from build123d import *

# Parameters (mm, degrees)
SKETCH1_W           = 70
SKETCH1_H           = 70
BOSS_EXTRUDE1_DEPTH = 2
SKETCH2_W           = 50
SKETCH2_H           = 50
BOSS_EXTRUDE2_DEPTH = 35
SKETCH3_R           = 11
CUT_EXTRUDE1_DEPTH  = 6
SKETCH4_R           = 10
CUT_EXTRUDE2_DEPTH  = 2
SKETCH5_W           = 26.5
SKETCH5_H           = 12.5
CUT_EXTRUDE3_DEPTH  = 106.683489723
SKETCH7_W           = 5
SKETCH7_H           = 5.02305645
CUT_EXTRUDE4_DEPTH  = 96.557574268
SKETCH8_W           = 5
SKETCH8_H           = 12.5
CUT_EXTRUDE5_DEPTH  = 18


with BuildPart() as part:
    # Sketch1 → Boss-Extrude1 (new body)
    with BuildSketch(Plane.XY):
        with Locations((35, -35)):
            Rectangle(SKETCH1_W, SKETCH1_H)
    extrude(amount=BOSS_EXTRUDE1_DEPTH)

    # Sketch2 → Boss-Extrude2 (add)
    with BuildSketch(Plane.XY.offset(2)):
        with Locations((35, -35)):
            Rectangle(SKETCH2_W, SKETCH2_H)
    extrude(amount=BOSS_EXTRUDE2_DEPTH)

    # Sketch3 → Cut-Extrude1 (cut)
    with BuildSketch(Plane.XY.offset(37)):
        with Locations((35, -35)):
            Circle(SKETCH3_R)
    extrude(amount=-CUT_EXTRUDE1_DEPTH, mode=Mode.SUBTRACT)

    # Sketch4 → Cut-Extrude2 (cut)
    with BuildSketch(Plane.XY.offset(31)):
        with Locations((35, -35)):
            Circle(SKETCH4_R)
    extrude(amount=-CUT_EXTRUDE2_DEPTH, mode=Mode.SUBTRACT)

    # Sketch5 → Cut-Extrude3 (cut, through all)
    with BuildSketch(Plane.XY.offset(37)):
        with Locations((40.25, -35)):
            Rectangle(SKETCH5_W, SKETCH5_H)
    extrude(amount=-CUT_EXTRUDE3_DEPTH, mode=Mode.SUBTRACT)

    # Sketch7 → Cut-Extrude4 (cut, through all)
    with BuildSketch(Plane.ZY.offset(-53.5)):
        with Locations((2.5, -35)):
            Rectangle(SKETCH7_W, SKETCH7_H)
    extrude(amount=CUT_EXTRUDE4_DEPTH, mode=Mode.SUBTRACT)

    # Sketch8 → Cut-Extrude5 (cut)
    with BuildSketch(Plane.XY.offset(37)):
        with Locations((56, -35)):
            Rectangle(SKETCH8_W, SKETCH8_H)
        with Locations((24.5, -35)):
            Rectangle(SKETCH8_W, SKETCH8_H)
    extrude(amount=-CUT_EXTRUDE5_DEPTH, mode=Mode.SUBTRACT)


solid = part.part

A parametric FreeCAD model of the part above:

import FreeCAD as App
import Part
import Sketcher
Q = App.Units.Quantity


def add_polygon(sketch, points):
    """Adds a closed chain of lines whose ends are joined by coincident constraints."""
    first, n = sketch.GeometryCount, len(points)
    for a, b in zip(points, points[1:] + points[:1]):
        sketch.addGeometry(Part.LineSegment(App.Vector(*a, 0), App.Vector(*b, 0)), False)
    for i in range(n):
        sketch.addConstraint(Sketcher.Constraint("Coincident", first + i, 2, first + (i + 1) % n, 1))

doc = App.newDocument("Part")
body = doc.addObject("PartDesign::Body", "Body")

# Sketch on XY plane
sketch1 = body.newObject("Sketcher::SketchObject", "Sketch")
sketch1.AttachmentSupport = (doc.getObject("XY_Plane"), [""])
sketch1.MapMode = "FlatFace"
add_polygon(sketch1, [(0, 0), (0, -70), (70, -70), (70, 0)])  # lines 0-3
sketch1.addConstraint(Sketcher.Constraint("Vertical", 0))
sketch1.addConstraint(Sketcher.Constraint("Horizontal", 1))
sketch1.addConstraint(Sketcher.Constraint("Vertical", 2))
sketch1.addConstraint(Sketcher.Constraint("Horizontal", 3))
sketch1.addConstraint(Sketcher.Constraint("Coincident", 3, 2, -1, 1))
sketch1.addConstraint(Sketcher.Constraint("Equal", 3, 0))
sketch1.addConstraint(Sketcher.Constraint("DistanceX", 1, 1, 1, 2, Q("70 mm")))
pad1 = body.newObject("PartDesign::Pad", "Pad")
pad1.Profile = sketch1
pad1.Length = 2

# Sketch on XY plane
sketch2 = body.newObject("Sketcher::SketchObject", "Sketch001")
sketch2.AttachmentSupport = (doc.getObject("XY_Plane"), [""])
sketch2.MapMode = "FlatFace"
sketch2.AttachmentOffset = App.Placement(App.Vector(0, 0, 2), App.Rotation())
add_polygon(sketch2, [(10, -10), (10, -60), (60, -60), (60, -10)])  # lines 0-3
sketch2.addConstraint(Sketcher.Constraint("Vertical", 0))
sketch2.addConstraint(Sketcher.Constraint("Horizontal", 1))
sketch2.addConstraint(Sketcher.Constraint("Vertical", 2))
sketch2.addConstraint(Sketcher.Constraint("Horizontal", 3))
sketch2.addConstraint(Sketcher.Constraint("Equal", 3, 0))
sketch2.addConstraint(Sketcher.Constraint("DistanceX", 1, 1, 1, 2, Q("50 mm")))
sketch2.addConstraint(Sketcher.Constraint("DistanceX", -1, 1, 0, 2, Q("10 mm")))
sketch2.addConstraint(Sketcher.Constraint("DistanceY", 0, 2, -1, 1, Q("60 mm")))
pad2 = body.newObject("PartDesign::Pad", "Pad001")
pad2.Profile = sketch2
pad2.Length = 35

# Sketch on XY plane
sketch3 = body.newObject("Sketcher::SketchObject", "Sketch002")
sketch3.AttachmentSupport = (doc.getObject("XY_Plane"), [""])
sketch3.MapMode = "FlatFace"
sketch3.AttachmentOffset = App.Placement(App.Vector(0, 0, 37), App.Rotation())
sketch3.addGeometry(Part.Circle(App.Vector(35, -35, 0), App.Vector(0, 0, 1), 11), False)
sketch3.addConstraint(Sketcher.Constraint("Diameter", 0, Q("22 mm")))
sketch3.addConstraint(Sketcher.Constraint("DistanceX", -1, 1, 0, 3, Q("35 mm")))
sketch3.addConstraint(Sketcher.Constraint("DistanceY", 0, 3, -1, 1, Q("35 mm")))
pocket1 = body.newObject("PartDesign::Pocket", "Pocket")
pocket1.Profile = sketch3
pocket1.Length = 6

# Sketch on XY plane
sketch4 = body.newObject("Sketcher::SketchObject", "Sketch003")
sketch4.AttachmentSupport = (doc.getObject("XY_Plane"), [""])
sketch4.MapMode = "FlatFace"
sketch4.AttachmentOffset = App.Placement(App.Vector(0, 0, 31), App.Rotation())
sketch4.addGeometry(Part.Circle(App.Vector(35, -35, 0), App.Vector(0, 0, 1), 10), False)
sketch4.addConstraint(Sketcher.Constraint("Diameter", 0, Q("20 mm")))
sketch4.addConstraint(Sketcher.Constraint("DistanceX", -1, 1, 0, 3, Q("35 mm")))
sketch4.addConstraint(Sketcher.Constraint("DistanceY", 0, 3, -1, 1, Q("35 mm")))
pocket2 = body.newObject("PartDesign::Pocket", "Pocket001")
pocket2.Profile = sketch4
pocket2.Length = 2

# Sketch on XY plane
sketch5 = body.newObject("Sketcher::SketchObject", "Sketch004")
sketch5.AttachmentSupport = (doc.getObject("XY_Plane"), [""])
sketch5.MapMode = "FlatFace"
sketch5.AttachmentOffset = App.Placement(App.Vector(0, 0, 37), App.Rotation())
add_polygon(sketch5, [(27, -29), (27, -41), (54, -41), (54, -29)])  # lines 0-3
sketch5.addConstraint(Sketcher.Constraint("Vertical", 0))
sketch5.addConstraint(Sketcher.Constraint("Horizontal", 1))
sketch5.addConstraint(Sketcher.Constraint("Vertical", 2))
sketch5.addConstraint(Sketcher.Constraint("Horizontal", 3))
sketch5.addConstraint(Sketcher.Constraint("DistanceX", 1, 1, 1, 2, Q("26.5 mm")))
sketch5.addConstraint(Sketcher.Constraint("DistanceY", 0, 2, 0, 1, Q("12.5 mm")))
sketch5.addConstraint(Sketcher.Constraint("DistanceX", -1, 1, 0, 2, Q("27 mm")))
sketch5.addConstraint(Sketcher.Constraint("DistanceY", 0, 2, -1, 1, Q("41.25 mm")))
pocket3 = body.newObject("PartDesign::Pocket", "Pocket002")
pocket3.Profile = sketch5
pocket3.Type = "ThroughAll"

# Sketch on YZ plane
sketch6 = body.newObject("Sketcher::SketchObject", "Sketch005")
sketch6.AttachmentSupport = (doc.getObject("YZ_Plane"), [""])
sketch6.MapMode = "FlatFace"
sketch6.AttachmentOffset = App.Placement(App.Vector(0, 0, 53.5), App.Rotation())
add_polygon(sketch6, [(-32, 0), (-38, 0), (-38, 5), (-32, 5)])  # lines 0-3
sketch6.addConstraint(Sketcher.Constraint("Horizontal", 0))
sketch6.addConstraint(Sketcher.Constraint("Vertical", 1))
sketch6.addConstraint(Sketcher.Constraint("Horizontal", 2))
sketch6.addConstraint(Sketcher.Constraint("Vertical", 3))
sketch6.addConstraint(Sketcher.Constraint("PointOnObject", 0, 2, -1))
sketch6.addConstraint(Sketcher.Constraint("DistanceY", 1, 1, 1, 2, Q("5 mm")))
sketch6.addConstraint(Sketcher.Constraint("DistanceX", 0, 2, 0, 1, Q("5.023056 mm")))
sketch6.addConstraint(Sketcher.Constraint("DistanceX", 0, 2, -1, 1, Q("37.511528 mm")))
pocket4 = body.newObject("PartDesign::Pocket", "Pocket003")
pocket4.Profile = sketch6
pocket4.Type = "ThroughAll"

# Sketch on XY plane
sketch7 = body.newObject("Sketcher::SketchObject", "Sketch006")
sketch7.AttachmentSupport = (doc.getObject("XY_Plane"), [""])
sketch7.MapMode = "FlatFace"
sketch7.AttachmentOffset = App.Placement(App.Vector(0, 0, 37), App.Rotation())
add_polygon(sketch7, [(54, -29), (54, -41), (58, -41), (58, -29)])  # lines 0-3
add_polygon(sketch7, [(22, -29), (22, -41), (27, -41), (27, -29)])  # lines 4-7
sketch7.addConstraint(Sketcher.Constraint("Vertical", 0))
sketch7.addConstraint(Sketcher.Constraint("Horizontal", 1))
sketch7.addConstraint(Sketcher.Constraint("Vertical", 2))
sketch7.addConstraint(Sketcher.Constraint("Horizontal", 3))
sketch7.addConstraint(Sketcher.Constraint("Vertical", 4))
sketch7.addConstraint(Sketcher.Constraint("Horizontal", 5))
sketch7.addConstraint(Sketcher.Constraint("Vertical", 6))
sketch7.addConstraint(Sketcher.Constraint("Horizontal", 7))
sketch7.addConstraint(Sketcher.Constraint("Horizontal", 1, 2, 4, 2))
sketch7.addConstraint(Sketcher.Constraint("Horizontal", 3, 2, 6, 2))
sketch7.addConstraint(Sketcher.Constraint("Equal", 3, 5))
sketch7.addConstraint(Sketcher.Constraint("DistanceX", 1, 1, 1, 2, Q("5 mm")))
sketch7.addConstraint(Sketcher.Constraint("DistanceY", 0, 2, 0, 1, Q("12.5 mm")))
sketch7.addConstraint(Sketcher.Constraint("DistanceX", -1, 1, 4, 2, Q("22 mm")))
sketch7.addConstraint(Sketcher.Constraint("DistanceX", -1, 1, 0, 2, Q("53.5 mm")))
sketch7.addConstraint(Sketcher.Constraint("DistanceY", 0, 2, -1, 1, Q("41.25 mm")))
pocket5 = body.newObject("PartDesign::Pocket", "Pocket004")
pocket5.Profile = sketch7
pocket5.Length = 18

doc.recompute()
